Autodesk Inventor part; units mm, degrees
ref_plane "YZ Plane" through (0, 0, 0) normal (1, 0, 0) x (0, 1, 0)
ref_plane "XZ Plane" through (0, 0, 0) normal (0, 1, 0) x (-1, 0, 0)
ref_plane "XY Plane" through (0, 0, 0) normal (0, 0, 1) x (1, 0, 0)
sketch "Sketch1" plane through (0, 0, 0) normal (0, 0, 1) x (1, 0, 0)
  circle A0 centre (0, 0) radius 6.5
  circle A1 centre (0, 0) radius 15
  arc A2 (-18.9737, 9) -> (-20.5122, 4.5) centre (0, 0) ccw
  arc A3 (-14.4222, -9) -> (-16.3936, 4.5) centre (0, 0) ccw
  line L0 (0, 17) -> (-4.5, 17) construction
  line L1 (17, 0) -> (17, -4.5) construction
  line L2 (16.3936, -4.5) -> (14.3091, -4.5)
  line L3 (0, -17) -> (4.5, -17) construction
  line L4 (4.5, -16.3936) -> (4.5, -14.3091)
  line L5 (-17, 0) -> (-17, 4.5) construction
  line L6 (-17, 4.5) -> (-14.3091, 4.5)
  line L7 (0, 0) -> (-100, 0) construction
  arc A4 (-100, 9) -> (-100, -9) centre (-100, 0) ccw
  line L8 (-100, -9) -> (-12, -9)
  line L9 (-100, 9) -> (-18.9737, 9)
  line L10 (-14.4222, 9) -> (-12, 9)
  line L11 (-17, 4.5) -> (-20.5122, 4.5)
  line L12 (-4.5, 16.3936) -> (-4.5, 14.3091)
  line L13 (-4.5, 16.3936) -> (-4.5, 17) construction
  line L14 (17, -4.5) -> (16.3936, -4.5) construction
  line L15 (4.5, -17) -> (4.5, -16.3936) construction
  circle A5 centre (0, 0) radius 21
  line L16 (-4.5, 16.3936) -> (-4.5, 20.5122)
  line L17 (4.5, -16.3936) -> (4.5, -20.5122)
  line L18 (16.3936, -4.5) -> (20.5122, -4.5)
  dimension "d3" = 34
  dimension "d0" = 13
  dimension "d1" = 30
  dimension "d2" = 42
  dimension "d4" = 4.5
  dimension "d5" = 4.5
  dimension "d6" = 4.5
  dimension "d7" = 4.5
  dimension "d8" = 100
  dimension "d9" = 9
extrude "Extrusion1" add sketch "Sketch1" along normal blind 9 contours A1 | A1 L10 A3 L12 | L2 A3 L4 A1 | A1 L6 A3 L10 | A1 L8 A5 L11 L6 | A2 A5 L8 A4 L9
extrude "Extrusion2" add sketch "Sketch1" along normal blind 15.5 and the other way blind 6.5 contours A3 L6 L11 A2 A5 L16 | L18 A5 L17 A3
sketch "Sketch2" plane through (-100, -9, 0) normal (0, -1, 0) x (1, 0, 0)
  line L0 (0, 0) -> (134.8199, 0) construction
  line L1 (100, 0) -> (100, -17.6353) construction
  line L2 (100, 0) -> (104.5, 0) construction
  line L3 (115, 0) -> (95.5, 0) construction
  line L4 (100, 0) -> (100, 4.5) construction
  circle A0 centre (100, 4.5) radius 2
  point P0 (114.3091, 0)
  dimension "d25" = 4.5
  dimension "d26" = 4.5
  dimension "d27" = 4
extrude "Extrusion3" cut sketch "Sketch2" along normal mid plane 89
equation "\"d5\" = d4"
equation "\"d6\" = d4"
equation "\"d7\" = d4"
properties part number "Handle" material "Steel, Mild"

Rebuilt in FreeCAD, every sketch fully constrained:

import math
import FreeCAD as App
import Part
import Sketcher
from FreeCAD import Vector

doc = App.newDocument("Part")
body = doc.addObject("PartDesign::Body", "Body")

# Sketch on XY plane
sketch1 = doc.addObject("Sketcher::SketchObject", "Sketch")
body.addObject(sketch1)
sketch1.AttachmentSupport = (doc.XY_Plane, [""])
sketch1.MapMode = "FlatFace"
sketch1.addGeometry([
    Part.ArcOfCircle(Part.Circle(Vector(0, 0, 0), Vector(0, 0, 1), 15), math.radians(-17.457589), math.radians(107.457589)),  # 0
    Part.LineSegment(Vector(-4.5, 14.3091, 0), Vector(-4.5, 16.3936, 0)),  # 1
    Part.ArcOfCircle(Part.Circle(Vector(0, 0, 0), Vector(0, 0, 1), 16.999996), math.radians(105.349474), math.radians(164.650526)),  # 2
    Part.LineSegment(Vector(-16.3936, 4.5, 0), Vector(-20.5122, 4.5, 0)),  # 3
    Part.ArcOfCircle(Part.Circle(Vector(-0.001619, 0.000658, 0), Vector(0, 0, 1), 20.998286), math.radians(154.622836), math.radians(167.627188)),  # 4
    Part.LineSegment(Vector(-18.9737, 9, 0), Vector(-100, 9, 0)),  # 5
    Part.ArcOfCircle(Part.Circle(Vector(-100, 0, 0), Vector(0, 0, 1), 9), math.radians(90), math.radians(270)),  # 6
    Part.LineSegment(Vector(-100, -9, 0), Vector(-12, -9, 0)),  # 7
    Part.ArcOfCircle(Part.Circle(Vector(0, 0, 0), Vector(0, 0, 1), 15), math.radians(-143.130102), math.radians(-72.542411)),  # 8
    Part.LineSegment(Vector(4.5, -14.3091, 0), Vector(4.5, -16.3936, 0)),  # 9
    Part.ArcOfCircle(Part.Circle(Vector(0, 0, 0), Vector(0, 0, 1), 16.999996), math.radians(-74.650526), math.radians(-15.349474)),  # 10
    Part.LineSegment(Vector(16.3936, -4.5, 0), Vector(14.3091, -4.5, 0)),  # 11
    Part.Circle(Vector(0, 0, 0), Vector(0, 0, 1), 6.5),  # 12
], False)
sketch1.addConstraint([
    Sketcher.Constraint("Coincident", 0, 2, 1, 1),
    Sketcher.Constraint("Coincident", 1, 2, 2, 1),
    Sketcher.Constraint("Coincident", 2, 2, 3, 1),
    Sketcher.Constraint("Coincident", 3, 2, 4, 2),
    Sketcher.Constraint("Coincident", 4, 1, 5, 1),
    Sketcher.Constraint("Tangent", 5, 2, 6, 1),
    Sketcher.Constraint("Tangent", 6, 2, 7, 1),
    Sketcher.Constraint("Coincident", 7, 2, 8, 1),
    Sketcher.Constraint("Coincident", 8, 2, 9, 1),
    Sketcher.Constraint("Coincident", 9, 2, 10, 1),
    Sketcher.Constraint("Coincident", 10, 2, 11, 1),
    Sketcher.Constraint("Coincident", 11, 2, 0, 1),
    Sketcher.Constraint("Vertical", 1),
    Sketcher.Constraint("Horizontal", 3),
    Sketcher.Constraint("Horizontal", 5),
    Sketcher.Constraint("Horizontal", 7),
    Sketcher.Constraint("Vertical", 9),
    Sketcher.Constraint("Horizontal", 11),
    Sketcher.Constraint("Coincident", 0, 3, -1, 1),
    Sketcher.Constraint("Coincident", 2, 3, -1, 1),
    Sketcher.Constraint("Coincident", 8, 3, -1, 1),
    Sketcher.Constraint("Coincident", 10, 3, -1, 1),
    Sketcher.Constraint("Coincident", 12, 3, -1, 1),
    Sketcher.Constraint("Equal", 0, 8),
    Sketcher.Constraint("Equal", 2, 10),
    Sketcher.Constraint("PointOnObject", 6, 3, -1),
    Sketcher.Constraint("Equal", 11, 1),
    Sketcher.Constraint("Equal", 1, 9),
    Sketcher.Constraint("Diameter", 12, 13.0),
    Sketcher.Constraint("Radius", 0, 15.0),
    Sketcher.Constraint("Radius", 2, 17.0),
    Sketcher.Constraint("Radius", 6, 9.0),
    Sketcher.Constraint("DistanceX", 6, 3, -1, 1, 100.0),
    Sketcher.Constraint("DistanceX", 0, 2, -1, 1, 4.5),
    Sketcher.Constraint("DistanceY", -1, 1, 2, 2, 4.5),
    Sketcher.Constraint("Radius", 4, 20.9983),
    Sketcher.Constraint("DistanceX", 4, 1, 2, 2, 2.58),
    Sketcher.Constraint("DistanceX", 3, 2, 3, 1, 4.1186),
])
pad1 = doc.addObject("PartDesign::Pad", "Pad")
body.addObject(pad1)
pad1.Profile = sketch1
pad1.Length = 9

# Sketch on XY plane
sketch2 = doc.addObject("Sketcher::SketchObject", "Sketch001")
body.addObject(sketch2)
sketch2.AttachmentSupport = (doc.XY_Plane, [""])
sketch2.MapMode = "FlatFace"
sketch2.addGeometry([
    Part.ArcOfCircle(Part.Circle(Vector(0, 0, 0), Vector(0, 0, 1), 16.999996), math.radians(105.349474), math.radians(164.650526)),  # 0
    Part.LineSegment(Vector(-4.5, 16.3936, 0), Vector(-4.5, 20.5122, 0)),  # 1
    Part.ArcOfCircle(Part.Circle(Vector(0, 0, 0), Vector(0, 0, 1), 21), math.radians(102.37362), math.radians(154.623106)),  # 2
    Part.ArcOfCircle(Part.Circle(Vector(-0.001619, 0.000658, 0), Vector(0, 0, 1), 20.998286), math.radians(154.622836), math.radians(167.627188)),  # 3
    Part.LineSegment(Vector(-20.5122, 4.5, 0), Vector(-16.3936, 4.5, 0)),  # 4
    Part.LineSegment(Vector(20.5122, -4.5, 0), Vector(16.3936, -4.5, 0)),  # 5
    Part.ArcOfCircle(Part.Circle(Vector(0, 0, 0), Vector(0, 0, 1), 16.999996), math.radians(-74.650526), math.radians(-15.349474)),  # 6
    Part.LineSegment(Vector(4.5, -16.3936, 0), Vector(4.5, -20.5122, 0)),  # 7
    Part.ArcOfCircle(Part.Circle(Vector(0, 0, 0), Vector(0, 0, 1), 21), math.radians(-77.62638), math.radians(-12.37362)),  # 8
], False)
sketch2.addConstraint([
    Sketcher.Constraint("Coincident", 0, 1, 1, 1),
    Sketcher.Constraint("Coincident", 1, 2, 2, 1),
    Sketcher.Constraint("Tangent", 2, 2, 3, 1),
    Sketcher.Constraint("Coincident", 3, 2, 4, 1),
    Sketcher.Constraint("Coincident", 4, 2, 0, 2),
    Sketcher.Constraint("Coincident", 5, 2, 6, 2),
    Sketcher.Constraint("Coincident", 6, 1, 7, 1),
    Sketcher.Constraint("Coincident", 7, 2, 8, 1),
    Sketcher.Constraint("Coincident", 8, 2, 5, 1),
    Sketcher.Constraint("Vertical", 1),
    Sketcher.Constraint("Horizontal", 4),
    Sketcher.Constraint("Horizontal", 5),
    Sketcher.Constraint("Vertical", 7),
    Sketcher.Constraint("Coincident", 0, 3, -1, 1),
    Sketcher.Constraint("Coincident", 2, 3, -1, 1),
    Sketcher.Constraint("Coincident", 6, 3, -1, 1),
    Sketcher.Constraint("Coincident", 8, 3, -1, 1),
    Sketcher.Constraint("Equal", 0, 6),
    Sketcher.Constraint("Equal", 2, 8),
    Sketcher.Constraint("Symmetric", 3, 2, 8, 2, -1, 1),
    Sketcher.Constraint("Equal", 5, 1),
    Sketcher.Constraint("Equal", 1, 7),
    Sketcher.Constraint("Radius", 0, 17.0),
    Sketcher.Constraint("Radius", 2, 21.0),
    Sketcher.Constraint("DistanceY", -1, 1, 2, 2, 9.0),
    Sketcher.Constraint("DistanceX", 0, 1, -1, 1, 4.5),
])
pad2 = doc.addObject("PartDesign::Pad", "Pad001")
body.addObject(pad2)
pad2.Profile = sketch2
pad2.Type = "TwoLengths"
pad2.Length = 15.5
pad2.Length2 = 6.5

# Sketch on XZ plane
sketch3 = doc.addObject("Sketcher::SketchObject", "Sketch002")
body.addObject(sketch3)
sketch3.AttachmentSupport = (doc.XZ_Plane, [""])
sketch3.MapMode = "FlatFace"
sketch3.AttachmentOffset = App.Placement(Vector(0, 0, 9), App.Rotation())
sketch3.addGeometry(Part.Circle(Vector(0, 4.5, 0), Vector(0, 0, 1), 2), False)
sketch3.addConstraint([
    Sketcher.Constraint("PointOnObject", 0, 3, -2),
    Sketcher.Constraint("Diameter", 0, 4.0),
    Sketcher.Constraint("DistanceY", -1, 1, 0, 3, 4.5),
])
pocket1 = doc.addObject("PartDesign::Pocket", "Pocket")
body.addObject(pocket1)
pocket1.Profile = sketch3
pocket1.Length = 89
pocket1.Midplane = True

doc.recompute()
